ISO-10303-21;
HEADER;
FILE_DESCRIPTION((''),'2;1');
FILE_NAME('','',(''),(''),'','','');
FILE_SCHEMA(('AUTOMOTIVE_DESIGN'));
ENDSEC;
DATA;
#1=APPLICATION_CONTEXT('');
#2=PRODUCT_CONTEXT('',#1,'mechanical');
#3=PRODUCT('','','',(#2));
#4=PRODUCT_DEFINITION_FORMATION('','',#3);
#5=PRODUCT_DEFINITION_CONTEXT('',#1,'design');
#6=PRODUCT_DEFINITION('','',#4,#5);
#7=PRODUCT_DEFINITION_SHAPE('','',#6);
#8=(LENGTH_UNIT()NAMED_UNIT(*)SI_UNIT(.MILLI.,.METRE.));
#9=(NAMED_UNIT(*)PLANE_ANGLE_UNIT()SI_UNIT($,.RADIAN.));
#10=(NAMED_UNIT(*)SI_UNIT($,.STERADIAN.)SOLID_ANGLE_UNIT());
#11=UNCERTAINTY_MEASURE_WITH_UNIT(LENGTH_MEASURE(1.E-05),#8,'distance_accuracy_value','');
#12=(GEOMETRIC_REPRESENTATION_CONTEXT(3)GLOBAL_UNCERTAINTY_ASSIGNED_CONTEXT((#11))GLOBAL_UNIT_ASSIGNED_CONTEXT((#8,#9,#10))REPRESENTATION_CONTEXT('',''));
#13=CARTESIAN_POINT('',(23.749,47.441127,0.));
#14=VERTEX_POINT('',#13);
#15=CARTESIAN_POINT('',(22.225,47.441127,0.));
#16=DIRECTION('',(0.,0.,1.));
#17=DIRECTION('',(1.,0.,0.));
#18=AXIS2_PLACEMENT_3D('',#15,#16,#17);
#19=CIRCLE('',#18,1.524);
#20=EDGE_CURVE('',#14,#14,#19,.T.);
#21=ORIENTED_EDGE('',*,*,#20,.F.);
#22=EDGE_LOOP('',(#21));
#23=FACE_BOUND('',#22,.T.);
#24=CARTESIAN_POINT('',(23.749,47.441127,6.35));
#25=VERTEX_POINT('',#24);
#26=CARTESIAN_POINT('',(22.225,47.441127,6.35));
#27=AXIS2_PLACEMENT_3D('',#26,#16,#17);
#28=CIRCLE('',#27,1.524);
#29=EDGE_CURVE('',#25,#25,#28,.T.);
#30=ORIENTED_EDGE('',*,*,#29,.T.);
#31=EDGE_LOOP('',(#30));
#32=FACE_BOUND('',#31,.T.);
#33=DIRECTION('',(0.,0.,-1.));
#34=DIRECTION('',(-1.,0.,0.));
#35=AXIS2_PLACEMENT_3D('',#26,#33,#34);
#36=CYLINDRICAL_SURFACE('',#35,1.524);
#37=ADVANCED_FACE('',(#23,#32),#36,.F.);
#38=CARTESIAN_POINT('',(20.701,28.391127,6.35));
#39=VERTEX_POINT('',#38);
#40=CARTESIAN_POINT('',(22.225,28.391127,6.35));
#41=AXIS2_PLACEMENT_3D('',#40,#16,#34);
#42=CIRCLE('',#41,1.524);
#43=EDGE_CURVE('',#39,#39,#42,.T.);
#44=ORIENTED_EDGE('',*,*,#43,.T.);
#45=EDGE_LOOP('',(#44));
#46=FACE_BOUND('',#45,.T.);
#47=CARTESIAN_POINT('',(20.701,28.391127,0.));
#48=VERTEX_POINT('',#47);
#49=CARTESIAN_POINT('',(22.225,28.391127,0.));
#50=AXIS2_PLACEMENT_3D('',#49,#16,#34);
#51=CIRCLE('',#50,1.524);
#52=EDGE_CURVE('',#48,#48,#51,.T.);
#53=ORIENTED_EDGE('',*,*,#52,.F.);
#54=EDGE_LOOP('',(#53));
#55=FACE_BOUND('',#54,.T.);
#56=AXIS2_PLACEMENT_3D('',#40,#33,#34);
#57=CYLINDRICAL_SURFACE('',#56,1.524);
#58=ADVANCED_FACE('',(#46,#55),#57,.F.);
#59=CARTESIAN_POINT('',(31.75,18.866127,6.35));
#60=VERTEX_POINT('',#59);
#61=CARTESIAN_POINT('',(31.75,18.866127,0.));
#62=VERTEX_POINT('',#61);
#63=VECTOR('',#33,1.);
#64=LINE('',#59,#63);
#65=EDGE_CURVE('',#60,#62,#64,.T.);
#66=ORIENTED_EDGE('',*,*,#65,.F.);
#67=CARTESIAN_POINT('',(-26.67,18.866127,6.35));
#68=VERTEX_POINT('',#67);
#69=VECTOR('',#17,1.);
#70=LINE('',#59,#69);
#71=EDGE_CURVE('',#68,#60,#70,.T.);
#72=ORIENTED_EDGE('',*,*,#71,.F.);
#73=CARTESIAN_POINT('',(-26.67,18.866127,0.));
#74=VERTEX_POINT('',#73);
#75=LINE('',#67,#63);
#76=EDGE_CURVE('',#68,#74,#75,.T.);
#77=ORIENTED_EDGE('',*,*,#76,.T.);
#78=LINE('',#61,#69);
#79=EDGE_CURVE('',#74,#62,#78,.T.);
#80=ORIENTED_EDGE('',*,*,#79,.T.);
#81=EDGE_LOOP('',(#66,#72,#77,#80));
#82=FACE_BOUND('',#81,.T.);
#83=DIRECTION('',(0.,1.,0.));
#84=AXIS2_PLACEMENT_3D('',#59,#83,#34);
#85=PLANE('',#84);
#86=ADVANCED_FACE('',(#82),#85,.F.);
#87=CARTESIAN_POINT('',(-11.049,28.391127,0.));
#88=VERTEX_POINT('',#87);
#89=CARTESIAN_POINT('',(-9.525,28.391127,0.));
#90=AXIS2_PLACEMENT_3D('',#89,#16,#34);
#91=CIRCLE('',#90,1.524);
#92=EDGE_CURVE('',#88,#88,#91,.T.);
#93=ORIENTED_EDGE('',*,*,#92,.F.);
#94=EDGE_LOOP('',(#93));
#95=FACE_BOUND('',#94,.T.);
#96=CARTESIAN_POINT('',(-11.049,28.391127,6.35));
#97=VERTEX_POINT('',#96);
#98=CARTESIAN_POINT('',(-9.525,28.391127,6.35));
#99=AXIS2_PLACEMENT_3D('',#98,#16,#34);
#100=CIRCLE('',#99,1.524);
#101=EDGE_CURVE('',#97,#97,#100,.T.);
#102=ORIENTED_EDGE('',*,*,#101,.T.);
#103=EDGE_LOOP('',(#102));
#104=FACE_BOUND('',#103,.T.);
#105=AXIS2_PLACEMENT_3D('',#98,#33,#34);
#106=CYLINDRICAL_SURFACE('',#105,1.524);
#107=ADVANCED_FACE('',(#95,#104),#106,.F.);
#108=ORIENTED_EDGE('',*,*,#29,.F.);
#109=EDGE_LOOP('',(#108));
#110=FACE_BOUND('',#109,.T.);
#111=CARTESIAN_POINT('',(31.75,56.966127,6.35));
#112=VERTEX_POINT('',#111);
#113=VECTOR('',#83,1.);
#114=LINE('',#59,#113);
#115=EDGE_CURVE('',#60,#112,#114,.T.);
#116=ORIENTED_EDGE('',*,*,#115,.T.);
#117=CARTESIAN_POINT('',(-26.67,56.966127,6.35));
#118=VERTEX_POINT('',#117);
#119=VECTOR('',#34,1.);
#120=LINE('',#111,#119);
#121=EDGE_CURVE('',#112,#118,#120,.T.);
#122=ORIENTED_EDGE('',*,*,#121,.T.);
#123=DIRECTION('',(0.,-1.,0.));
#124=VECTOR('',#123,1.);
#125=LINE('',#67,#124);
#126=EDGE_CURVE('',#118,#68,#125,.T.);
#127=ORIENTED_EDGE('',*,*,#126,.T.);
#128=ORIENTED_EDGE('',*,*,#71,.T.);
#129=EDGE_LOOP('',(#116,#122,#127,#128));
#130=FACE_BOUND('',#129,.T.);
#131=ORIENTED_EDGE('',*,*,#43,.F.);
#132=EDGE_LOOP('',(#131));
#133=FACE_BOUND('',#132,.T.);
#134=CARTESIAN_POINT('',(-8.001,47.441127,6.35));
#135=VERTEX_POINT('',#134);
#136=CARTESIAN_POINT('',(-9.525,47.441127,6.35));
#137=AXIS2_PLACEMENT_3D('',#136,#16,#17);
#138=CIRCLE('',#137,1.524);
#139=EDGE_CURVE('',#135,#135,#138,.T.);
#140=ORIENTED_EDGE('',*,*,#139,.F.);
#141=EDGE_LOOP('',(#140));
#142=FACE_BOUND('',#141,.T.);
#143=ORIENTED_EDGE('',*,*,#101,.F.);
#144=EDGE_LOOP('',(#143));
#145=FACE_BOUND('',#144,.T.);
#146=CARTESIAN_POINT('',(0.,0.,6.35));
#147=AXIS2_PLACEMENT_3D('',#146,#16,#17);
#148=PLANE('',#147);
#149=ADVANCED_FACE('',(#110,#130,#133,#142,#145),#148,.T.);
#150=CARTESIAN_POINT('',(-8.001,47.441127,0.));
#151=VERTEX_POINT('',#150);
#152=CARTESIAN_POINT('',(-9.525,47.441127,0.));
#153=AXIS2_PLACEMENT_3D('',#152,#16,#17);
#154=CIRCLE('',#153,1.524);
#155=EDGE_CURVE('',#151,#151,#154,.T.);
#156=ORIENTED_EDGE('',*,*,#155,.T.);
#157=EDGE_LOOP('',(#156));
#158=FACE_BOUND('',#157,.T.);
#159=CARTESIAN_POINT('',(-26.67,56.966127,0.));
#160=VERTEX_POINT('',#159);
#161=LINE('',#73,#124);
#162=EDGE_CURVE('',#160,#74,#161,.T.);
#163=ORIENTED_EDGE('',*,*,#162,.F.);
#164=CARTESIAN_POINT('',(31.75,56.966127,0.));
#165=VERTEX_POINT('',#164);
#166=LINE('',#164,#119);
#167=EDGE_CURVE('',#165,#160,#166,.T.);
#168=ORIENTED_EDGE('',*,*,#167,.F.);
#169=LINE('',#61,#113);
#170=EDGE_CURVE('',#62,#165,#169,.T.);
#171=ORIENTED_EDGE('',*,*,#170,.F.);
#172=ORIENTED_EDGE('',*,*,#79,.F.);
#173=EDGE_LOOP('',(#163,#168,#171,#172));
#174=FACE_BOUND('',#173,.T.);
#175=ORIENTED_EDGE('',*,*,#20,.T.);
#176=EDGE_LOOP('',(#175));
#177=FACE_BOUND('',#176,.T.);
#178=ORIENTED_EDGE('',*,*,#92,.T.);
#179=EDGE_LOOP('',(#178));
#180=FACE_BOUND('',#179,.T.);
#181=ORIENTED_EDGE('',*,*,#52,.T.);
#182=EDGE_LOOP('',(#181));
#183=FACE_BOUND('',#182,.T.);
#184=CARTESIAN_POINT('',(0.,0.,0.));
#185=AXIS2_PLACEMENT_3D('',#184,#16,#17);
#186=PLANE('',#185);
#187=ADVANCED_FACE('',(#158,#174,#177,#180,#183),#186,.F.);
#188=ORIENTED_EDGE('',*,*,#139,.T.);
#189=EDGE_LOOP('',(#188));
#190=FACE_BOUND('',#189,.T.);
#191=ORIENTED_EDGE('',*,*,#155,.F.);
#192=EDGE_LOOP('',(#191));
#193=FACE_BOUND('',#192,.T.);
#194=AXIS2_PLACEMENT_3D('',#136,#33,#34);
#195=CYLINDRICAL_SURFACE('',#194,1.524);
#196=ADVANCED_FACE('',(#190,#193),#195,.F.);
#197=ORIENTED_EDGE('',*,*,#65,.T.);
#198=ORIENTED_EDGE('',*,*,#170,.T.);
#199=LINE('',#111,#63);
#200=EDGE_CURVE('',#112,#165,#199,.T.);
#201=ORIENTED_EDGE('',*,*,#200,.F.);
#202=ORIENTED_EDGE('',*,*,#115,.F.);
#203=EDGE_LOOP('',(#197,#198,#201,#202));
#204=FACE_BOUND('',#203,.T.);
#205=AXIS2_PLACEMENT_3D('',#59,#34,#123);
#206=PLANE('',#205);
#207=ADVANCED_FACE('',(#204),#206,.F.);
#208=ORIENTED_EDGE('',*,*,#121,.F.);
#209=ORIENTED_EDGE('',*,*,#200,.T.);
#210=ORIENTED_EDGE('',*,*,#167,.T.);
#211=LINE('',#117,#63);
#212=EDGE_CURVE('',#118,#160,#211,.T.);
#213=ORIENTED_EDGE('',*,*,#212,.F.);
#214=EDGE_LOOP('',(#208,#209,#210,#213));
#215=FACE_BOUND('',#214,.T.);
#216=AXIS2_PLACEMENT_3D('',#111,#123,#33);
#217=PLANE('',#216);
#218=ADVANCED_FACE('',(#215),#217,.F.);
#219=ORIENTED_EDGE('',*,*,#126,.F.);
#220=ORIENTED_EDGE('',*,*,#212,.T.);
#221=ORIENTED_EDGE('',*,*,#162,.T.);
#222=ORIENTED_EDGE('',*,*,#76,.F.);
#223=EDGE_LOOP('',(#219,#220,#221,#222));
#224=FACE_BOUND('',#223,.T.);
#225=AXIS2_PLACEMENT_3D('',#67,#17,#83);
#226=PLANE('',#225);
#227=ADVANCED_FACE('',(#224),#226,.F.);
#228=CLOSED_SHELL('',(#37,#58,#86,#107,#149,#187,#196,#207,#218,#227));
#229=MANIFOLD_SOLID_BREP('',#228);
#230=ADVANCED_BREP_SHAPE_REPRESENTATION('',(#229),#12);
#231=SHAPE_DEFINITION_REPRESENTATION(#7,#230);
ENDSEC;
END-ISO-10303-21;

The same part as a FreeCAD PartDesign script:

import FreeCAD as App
import Part
import Sketcher

V = App.Vector
Q = App.Units.Quantity


def add_polygon(sketch, points):
    """Adds a closed chain of lines whose ends are joined by coincident constraints."""
    first, n = sketch.GeometryCount, len(points)
    for a, b in zip(points, points[1:] + points[:1]):
        sketch.addGeometry(Part.LineSegment(App.Vector(*a, 0), App.Vector(*b, 0)), False)
    for i in range(n):
        sketch.addConstraint(Sketcher.Constraint("Coincident", first + i, 2, first + (i + 1) % n, 1))

doc = App.newDocument("Part")
body = doc.addObject("PartDesign::Body", "Body")

sketch1 = doc.addObject("Sketcher::SketchObject", "Sketch")
body.addObject(sketch1)
sketch1.AttachmentSupport = (doc.XY_Plane, [""])
sketch1.MapMode = "FlatFace"
add_polygon(sketch1, [(-26.7, 57), (-26.7, 18.9), (31.8, 18.9), (31.8, 57)])
sketch1.addGeometry(Part.Circle(V(-9.5, 28.4, 0), V(0, 0, 1), 1.5), False)
sketch1.addGeometry(Part.Circle(V(22.2, 28.4, 0), V(0, 0, 1), 1.5), False)
sketch1.addGeometry(Part.Circle(V(-9.5, 47.4, 0), V(0, 0, 1), 1.5), False)
sketch1.addGeometry(Part.Circle(V(22.2, 47.4, 0), V(0, 0, 1), 1.5), False)
sketch1.addConstraint([
    Sketcher.Constraint("Vertical", 0),
    Sketcher.Constraint("Horizontal", 1),
    Sketcher.Constraint("Vertical", 2),
    Sketcher.Constraint("Horizontal", 3),
    Sketcher.Constraint("Equal", 4, 5),
    Sketcher.Constraint("Equal", 5, 6),
    Sketcher.Constraint("Equal", 6, 7),
    Sketcher.Constraint("Horizontal", 4, 3, 5, 3),
    Sketcher.Constraint("Horizontal", 6, 3, 7, 3),
    Sketcher.Constraint("Vertical", 4, 3, 6, 3),
    Sketcher.Constraint("Vertical", 5, 3, 7, 3),
    Sketcher.Constraint("Diameter", 4, Q("0.12 in")),
    Sketcher.Constraint("DistanceX", 1, 1, 1, 2, Q("2.3 in")),
    Sketcher.Constraint("DistanceY", 0, 2, 0, 1, Q("1.5 in")),
    Sketcher.Constraint("DistanceX", 0, 2, -1, 1, Q("1.05 in")),
    Sketcher.Constraint("DistanceX", 4, 3, 5, 3, Q("1.25 in")),
    Sketcher.Constraint("DistanceY", 4, 3, 6, 3, Q("0.75 in")),
    Sketcher.Constraint("DistanceX", 4, 3, -1, 1, Q("0.375 in")),
    Sketcher.Constraint("DistanceY", 0, 2, 4, 3, Q("0.375 in")),
    Sketcher.Constraint("DistanceY", -1, 1, 4, 3, Q("28.391127 mm")),
])
pad1 = doc.addObject("PartDesign::Pad", "Pad")
body.addObject(pad1)
pad1.Profile = sketch1
pad1.Length = Q("0.25 in")

doc.recompute()
